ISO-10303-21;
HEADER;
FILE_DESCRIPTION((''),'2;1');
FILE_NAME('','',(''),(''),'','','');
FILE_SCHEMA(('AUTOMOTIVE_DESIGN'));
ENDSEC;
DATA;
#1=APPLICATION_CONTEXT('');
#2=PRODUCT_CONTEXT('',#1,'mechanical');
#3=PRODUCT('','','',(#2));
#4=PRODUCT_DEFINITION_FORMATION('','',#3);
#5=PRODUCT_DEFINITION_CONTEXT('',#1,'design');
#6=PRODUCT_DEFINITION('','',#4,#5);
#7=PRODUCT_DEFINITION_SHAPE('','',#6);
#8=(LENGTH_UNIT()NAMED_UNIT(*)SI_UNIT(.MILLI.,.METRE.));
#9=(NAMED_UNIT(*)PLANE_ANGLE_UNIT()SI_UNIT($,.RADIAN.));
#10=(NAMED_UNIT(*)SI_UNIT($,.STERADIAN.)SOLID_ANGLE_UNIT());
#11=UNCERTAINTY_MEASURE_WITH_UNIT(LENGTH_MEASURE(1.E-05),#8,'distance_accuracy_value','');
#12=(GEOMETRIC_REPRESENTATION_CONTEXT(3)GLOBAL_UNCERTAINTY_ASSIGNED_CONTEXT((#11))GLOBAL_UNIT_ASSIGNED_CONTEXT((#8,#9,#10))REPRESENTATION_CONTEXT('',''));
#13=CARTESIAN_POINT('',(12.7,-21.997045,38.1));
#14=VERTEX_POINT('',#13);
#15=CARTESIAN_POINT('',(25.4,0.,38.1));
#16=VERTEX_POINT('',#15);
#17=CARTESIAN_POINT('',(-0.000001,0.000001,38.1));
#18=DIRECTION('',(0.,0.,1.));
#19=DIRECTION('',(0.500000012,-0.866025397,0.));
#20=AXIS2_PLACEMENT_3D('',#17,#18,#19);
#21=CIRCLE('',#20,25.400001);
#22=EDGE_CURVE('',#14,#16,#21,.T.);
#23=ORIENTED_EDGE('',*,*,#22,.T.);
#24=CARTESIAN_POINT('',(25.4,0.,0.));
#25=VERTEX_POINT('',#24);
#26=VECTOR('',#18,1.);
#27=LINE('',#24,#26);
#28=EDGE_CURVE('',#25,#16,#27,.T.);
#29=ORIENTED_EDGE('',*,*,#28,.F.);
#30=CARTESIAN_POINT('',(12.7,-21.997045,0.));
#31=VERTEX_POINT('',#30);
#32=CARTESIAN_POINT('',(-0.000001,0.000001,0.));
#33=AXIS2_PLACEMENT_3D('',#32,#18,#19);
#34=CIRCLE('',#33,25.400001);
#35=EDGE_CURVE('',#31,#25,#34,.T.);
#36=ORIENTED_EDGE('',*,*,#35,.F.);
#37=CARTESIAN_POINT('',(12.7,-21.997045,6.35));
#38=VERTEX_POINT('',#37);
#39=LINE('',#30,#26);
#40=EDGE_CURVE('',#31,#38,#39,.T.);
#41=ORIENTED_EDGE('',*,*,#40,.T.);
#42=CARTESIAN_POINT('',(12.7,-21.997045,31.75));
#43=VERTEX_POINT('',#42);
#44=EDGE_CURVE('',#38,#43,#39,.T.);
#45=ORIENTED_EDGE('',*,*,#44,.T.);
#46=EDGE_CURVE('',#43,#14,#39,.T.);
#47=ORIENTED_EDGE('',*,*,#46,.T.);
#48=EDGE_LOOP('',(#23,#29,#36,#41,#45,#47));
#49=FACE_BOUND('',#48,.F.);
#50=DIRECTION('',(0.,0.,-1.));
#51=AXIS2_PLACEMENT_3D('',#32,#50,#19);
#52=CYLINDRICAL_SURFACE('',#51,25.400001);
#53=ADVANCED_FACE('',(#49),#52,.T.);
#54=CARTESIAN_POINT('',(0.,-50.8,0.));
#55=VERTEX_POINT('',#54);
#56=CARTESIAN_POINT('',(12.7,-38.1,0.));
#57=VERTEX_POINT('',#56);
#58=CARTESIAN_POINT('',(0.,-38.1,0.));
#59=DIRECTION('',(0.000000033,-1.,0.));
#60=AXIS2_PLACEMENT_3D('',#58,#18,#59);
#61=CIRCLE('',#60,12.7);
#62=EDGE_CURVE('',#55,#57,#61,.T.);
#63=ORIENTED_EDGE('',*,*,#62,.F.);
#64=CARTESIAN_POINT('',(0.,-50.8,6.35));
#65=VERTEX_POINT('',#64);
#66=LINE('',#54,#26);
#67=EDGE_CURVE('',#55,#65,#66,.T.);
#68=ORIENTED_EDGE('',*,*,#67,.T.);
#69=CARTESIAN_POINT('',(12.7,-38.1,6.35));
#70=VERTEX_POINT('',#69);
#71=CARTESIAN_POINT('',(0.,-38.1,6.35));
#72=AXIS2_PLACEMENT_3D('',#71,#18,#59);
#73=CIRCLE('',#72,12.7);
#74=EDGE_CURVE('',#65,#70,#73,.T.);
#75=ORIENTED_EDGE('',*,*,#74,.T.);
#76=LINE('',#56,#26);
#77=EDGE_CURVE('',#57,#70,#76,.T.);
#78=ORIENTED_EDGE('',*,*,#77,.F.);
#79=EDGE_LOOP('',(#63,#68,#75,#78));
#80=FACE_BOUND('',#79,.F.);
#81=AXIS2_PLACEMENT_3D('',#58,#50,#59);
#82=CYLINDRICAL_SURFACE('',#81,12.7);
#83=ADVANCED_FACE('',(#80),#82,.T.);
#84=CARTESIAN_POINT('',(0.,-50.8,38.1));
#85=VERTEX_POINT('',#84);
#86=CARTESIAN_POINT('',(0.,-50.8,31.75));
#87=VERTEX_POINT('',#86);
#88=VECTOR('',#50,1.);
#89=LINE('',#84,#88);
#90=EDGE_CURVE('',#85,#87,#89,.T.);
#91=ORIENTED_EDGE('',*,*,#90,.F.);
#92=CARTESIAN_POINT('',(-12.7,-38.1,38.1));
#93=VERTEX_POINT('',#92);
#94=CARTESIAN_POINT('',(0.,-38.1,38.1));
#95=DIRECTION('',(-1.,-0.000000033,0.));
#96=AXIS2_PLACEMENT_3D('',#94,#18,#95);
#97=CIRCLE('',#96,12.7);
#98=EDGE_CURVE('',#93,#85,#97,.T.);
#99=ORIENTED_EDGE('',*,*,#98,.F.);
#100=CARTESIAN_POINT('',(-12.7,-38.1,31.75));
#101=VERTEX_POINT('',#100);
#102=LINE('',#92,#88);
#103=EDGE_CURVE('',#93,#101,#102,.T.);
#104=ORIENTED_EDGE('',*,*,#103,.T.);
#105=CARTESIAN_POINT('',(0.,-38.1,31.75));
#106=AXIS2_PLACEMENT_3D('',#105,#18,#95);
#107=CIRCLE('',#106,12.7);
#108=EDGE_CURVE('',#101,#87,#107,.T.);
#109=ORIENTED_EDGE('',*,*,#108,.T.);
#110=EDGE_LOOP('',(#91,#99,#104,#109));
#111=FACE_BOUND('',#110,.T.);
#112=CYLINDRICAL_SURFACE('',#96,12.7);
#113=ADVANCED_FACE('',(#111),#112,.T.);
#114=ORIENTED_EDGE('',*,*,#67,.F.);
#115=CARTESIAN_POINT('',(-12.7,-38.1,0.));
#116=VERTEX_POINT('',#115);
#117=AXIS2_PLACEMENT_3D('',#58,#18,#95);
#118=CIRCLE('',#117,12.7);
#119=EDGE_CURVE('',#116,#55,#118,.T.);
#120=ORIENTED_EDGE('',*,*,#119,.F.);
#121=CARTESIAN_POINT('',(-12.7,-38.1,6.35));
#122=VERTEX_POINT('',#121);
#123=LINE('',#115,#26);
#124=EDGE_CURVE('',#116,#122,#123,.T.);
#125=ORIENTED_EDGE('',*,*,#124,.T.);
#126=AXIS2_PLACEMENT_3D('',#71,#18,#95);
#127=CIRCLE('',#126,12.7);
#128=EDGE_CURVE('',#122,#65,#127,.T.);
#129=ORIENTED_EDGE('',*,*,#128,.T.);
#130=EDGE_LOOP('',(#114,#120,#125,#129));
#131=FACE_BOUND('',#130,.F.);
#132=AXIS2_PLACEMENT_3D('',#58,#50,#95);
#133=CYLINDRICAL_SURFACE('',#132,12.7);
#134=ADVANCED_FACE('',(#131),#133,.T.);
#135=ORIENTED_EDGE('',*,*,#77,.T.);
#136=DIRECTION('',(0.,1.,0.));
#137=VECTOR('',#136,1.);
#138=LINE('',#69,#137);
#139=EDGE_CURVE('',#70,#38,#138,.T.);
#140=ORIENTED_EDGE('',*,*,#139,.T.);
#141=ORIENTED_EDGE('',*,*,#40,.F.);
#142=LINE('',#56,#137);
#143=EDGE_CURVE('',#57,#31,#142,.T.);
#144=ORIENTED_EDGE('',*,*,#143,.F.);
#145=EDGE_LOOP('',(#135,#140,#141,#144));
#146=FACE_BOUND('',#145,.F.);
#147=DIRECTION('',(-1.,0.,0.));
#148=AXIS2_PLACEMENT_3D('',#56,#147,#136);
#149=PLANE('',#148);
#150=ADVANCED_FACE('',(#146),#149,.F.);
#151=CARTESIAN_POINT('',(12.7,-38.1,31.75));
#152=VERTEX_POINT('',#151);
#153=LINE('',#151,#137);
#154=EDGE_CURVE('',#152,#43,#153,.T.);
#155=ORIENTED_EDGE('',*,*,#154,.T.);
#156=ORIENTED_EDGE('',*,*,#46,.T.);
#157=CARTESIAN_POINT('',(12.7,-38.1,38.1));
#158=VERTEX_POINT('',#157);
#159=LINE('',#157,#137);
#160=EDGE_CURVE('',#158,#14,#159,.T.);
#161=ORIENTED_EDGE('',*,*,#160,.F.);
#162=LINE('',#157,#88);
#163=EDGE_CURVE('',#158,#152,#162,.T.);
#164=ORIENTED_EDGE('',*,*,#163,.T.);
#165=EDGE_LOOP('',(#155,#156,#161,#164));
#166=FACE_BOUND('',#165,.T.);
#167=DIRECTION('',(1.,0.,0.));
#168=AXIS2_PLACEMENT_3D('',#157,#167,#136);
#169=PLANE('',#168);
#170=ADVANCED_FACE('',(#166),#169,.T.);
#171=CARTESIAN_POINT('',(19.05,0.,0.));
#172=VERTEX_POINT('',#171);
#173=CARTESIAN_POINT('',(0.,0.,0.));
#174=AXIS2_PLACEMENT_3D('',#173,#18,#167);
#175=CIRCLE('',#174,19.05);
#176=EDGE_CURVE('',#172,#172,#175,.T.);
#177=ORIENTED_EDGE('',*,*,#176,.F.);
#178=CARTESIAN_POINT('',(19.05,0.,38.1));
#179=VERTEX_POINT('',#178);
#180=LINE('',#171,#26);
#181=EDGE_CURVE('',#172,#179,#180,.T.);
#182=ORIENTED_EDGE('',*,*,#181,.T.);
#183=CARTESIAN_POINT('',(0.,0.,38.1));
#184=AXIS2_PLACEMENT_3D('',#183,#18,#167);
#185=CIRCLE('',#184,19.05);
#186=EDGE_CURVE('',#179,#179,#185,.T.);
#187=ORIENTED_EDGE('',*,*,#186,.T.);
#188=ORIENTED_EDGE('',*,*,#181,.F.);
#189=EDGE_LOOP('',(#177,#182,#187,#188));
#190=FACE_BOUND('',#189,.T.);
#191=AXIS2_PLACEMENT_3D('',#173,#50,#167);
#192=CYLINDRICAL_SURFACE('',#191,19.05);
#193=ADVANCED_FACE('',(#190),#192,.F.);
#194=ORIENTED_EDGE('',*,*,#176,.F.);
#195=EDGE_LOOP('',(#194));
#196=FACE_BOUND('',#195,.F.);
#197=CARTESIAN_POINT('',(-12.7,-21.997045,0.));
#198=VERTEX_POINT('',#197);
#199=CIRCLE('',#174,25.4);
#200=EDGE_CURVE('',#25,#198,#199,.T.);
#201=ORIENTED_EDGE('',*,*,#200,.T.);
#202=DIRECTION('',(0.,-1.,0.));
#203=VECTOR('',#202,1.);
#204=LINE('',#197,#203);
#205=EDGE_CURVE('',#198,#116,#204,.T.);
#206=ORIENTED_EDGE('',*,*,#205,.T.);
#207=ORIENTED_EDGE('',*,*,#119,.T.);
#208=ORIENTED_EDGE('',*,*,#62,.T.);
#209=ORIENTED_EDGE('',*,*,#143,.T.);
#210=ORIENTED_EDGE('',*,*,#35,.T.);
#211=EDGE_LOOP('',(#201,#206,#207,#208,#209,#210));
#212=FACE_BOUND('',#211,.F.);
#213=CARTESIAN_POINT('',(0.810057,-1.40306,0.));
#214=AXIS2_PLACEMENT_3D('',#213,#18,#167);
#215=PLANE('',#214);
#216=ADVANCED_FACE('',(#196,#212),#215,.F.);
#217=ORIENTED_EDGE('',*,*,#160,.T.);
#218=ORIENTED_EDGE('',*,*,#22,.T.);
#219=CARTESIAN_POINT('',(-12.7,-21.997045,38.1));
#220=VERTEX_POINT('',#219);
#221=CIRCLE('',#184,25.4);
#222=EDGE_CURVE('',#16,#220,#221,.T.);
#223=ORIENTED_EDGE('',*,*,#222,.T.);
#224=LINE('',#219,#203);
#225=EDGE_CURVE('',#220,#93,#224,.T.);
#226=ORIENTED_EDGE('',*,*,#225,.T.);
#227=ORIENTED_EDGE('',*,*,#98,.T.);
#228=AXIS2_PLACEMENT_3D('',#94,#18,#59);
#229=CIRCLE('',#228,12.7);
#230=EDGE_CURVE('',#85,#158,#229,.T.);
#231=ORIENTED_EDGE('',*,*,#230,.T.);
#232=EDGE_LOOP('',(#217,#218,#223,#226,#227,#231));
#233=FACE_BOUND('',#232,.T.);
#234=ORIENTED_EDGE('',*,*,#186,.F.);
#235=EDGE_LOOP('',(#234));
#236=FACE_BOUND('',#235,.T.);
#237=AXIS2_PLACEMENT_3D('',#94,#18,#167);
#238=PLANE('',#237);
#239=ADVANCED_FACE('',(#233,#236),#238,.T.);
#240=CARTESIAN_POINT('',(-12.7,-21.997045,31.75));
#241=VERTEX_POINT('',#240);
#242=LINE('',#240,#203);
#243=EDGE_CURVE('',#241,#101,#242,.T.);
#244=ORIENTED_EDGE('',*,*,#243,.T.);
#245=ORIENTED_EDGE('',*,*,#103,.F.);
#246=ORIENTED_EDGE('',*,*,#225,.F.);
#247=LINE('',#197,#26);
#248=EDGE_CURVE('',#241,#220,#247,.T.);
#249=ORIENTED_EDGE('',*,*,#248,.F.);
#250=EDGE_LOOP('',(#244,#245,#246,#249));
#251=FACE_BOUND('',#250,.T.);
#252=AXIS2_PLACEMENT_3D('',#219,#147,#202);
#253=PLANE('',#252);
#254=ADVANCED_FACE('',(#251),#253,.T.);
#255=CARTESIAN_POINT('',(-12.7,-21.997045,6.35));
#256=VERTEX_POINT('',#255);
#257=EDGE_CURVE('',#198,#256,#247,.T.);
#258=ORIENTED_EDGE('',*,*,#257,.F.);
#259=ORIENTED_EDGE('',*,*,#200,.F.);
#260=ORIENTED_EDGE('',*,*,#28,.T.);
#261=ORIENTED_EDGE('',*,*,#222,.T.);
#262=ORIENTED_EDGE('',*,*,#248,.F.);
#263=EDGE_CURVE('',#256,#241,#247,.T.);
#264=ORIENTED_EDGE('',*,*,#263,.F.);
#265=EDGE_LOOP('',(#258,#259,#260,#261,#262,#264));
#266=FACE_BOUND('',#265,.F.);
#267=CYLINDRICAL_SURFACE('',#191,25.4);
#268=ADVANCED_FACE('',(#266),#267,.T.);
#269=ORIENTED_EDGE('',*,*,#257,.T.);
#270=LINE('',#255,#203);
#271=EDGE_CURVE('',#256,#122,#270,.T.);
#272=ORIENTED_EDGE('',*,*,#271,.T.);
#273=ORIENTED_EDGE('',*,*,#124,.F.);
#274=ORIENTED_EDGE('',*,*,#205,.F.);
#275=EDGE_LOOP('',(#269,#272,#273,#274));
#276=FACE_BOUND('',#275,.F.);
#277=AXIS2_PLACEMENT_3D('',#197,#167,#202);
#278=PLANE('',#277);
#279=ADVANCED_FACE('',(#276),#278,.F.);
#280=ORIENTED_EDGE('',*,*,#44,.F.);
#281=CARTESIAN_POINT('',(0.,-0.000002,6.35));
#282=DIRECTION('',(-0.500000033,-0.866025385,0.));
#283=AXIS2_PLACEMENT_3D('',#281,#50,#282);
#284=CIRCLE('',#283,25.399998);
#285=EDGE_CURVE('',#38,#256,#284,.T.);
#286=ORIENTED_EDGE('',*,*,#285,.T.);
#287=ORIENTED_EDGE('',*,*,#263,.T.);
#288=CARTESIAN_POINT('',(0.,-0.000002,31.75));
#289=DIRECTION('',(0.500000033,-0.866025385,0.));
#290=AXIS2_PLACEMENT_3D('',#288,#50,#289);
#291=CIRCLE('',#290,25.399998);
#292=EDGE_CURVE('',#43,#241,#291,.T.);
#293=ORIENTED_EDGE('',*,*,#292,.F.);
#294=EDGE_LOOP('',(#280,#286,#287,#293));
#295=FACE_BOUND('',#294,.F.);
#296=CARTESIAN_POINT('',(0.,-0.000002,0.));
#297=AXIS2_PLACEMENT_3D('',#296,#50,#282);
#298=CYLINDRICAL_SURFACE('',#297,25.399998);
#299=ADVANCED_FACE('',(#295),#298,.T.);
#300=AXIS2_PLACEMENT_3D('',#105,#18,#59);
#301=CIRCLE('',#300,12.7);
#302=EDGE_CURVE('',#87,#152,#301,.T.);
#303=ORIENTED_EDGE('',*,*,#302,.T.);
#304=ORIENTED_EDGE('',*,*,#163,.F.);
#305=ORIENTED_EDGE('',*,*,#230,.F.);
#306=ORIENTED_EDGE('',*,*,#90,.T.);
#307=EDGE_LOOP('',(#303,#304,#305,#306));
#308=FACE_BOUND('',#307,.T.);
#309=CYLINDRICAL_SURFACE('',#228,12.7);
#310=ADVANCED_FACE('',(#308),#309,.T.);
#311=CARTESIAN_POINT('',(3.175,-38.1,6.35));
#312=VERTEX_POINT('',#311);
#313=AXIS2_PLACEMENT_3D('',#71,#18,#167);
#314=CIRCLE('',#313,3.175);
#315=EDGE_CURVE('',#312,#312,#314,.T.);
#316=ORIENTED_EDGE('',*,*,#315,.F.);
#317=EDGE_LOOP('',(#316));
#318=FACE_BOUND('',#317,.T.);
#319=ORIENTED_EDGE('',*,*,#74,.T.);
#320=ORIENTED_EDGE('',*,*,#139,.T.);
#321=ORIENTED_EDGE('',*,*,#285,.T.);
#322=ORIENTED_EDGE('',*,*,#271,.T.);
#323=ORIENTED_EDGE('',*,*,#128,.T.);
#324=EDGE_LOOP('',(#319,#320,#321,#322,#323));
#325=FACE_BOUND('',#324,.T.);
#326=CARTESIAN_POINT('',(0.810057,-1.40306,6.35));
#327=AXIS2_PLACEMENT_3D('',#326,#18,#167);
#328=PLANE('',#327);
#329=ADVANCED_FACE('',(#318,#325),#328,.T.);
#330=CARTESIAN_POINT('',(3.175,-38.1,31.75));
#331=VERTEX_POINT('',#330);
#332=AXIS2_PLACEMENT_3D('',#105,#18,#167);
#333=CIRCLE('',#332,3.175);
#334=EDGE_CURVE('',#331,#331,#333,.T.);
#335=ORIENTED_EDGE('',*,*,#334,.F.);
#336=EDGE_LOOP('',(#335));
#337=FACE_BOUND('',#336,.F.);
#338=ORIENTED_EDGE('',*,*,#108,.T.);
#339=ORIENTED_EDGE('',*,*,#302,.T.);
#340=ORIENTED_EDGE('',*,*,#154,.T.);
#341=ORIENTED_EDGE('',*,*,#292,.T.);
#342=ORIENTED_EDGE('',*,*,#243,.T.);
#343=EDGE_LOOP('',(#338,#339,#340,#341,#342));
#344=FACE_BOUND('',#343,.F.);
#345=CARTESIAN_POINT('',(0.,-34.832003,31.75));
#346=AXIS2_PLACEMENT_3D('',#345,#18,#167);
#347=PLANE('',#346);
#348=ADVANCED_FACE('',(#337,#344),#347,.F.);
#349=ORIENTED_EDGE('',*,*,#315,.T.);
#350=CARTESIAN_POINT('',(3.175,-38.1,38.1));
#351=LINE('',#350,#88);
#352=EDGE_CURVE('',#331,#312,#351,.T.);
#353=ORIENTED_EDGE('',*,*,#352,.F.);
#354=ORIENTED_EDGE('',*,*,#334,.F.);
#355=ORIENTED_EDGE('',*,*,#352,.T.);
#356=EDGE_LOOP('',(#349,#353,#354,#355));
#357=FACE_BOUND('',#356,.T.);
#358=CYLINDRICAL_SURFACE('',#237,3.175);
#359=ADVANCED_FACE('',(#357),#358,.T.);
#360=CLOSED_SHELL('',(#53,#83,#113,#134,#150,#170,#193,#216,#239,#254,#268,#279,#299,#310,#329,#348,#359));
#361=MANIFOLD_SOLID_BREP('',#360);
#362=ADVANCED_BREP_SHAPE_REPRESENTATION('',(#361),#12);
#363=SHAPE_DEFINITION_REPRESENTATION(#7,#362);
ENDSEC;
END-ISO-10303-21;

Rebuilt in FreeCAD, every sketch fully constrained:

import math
import FreeCAD as App
import Part
import Sketcher

V = App.Vector
Q = App.Units.Quantity

doc = App.newDocument("Part")
body = doc.addObject("PartDesign::Body", "Body")

# Sketch on XY plane
sketch1 = doc.addObject("Sketcher::SketchObject", "Sketch")
body.addObject(sketch1)
sketch1.AttachmentSupport = (doc.XY_Plane, [""])
sketch1.MapMode = "FlatFace"
sketch1.addGeometry([
    Part.ArcOfCircle(Part.Circle(V(0, 0, 0), V(0, 0, 1), 25), math.radians(-60), math.radians(0)),
    Part.ArcOfCircle(Part.Circle(V(0, 0, 0), V(0, 0, 1), 25), math.radians(0), math.radians(240)),
    Part.ArcOfCircle(Part.Circle(V(0, 0, 0), V(0, 0, 1), 25), math.radians(-120), math.radians(-60)),
    Part.Circle(V(0, 0, 0), V(0, 0, 1), 19),
], False)
sketch1.addConstraint([
    Sketcher.Constraint("Tangent", 0, 2, 1, 1),
    Sketcher.Constraint("Tangent", 1, 2, 2, 1),
    Sketcher.Constraint("Tangent", 2, 2, 0, 1),
    Sketcher.Constraint("Coincident", 0, 3, -1, 1),
    Sketcher.Constraint("Coincident", 3, 3, -1, 1),
    Sketcher.Constraint("PointOnObject", 0, 2, -1),
    Sketcher.Constraint("Horizontal", 1, 2, 2, 2),
    Sketcher.Constraint("Radius", 0, Q("1 in")),
    Sketcher.Constraint("Diameter", 3, Q("1.5 in")),
    Sketcher.Constraint("DistanceX", 1, 2, 2, 2, Q("1 in")),
])
pad1 = doc.addObject("PartDesign::Pad", "Pad")
body.addObject(pad1)
pad1.Profile = sketch1
pad1.Length = Q("1.5 in")

# Sketch on XY plane
sketch2 = doc.addObject("Sketcher::SketchObject", "Sketch001")
body.addObject(sketch2)
sketch2.AttachmentSupport = (doc.XY_Plane, [""])
sketch2.MapMode = "FlatFace"
sketch2.addGeometry([
    Part.ArcOfCircle(Part.Circle(V(0, 0, 0), V(0, 0, 1), 25), math.radians(-60), math.radians(0)),  # 0
    Part.ArcOfCircle(Part.Circle(V(0, 0, 0), V(0, 0, 1), 25), math.radians(0), math.radians(240)),  # 1
    Part.LineSegment(V(-13, -22, 0), V(-13, -38, 0)),  # 2
    Part.ArcOfCircle(Part.Circle(V(0, -38, 0), V(0, 0, 1), 13), math.radians(-180), math.radians(-90)),  # 3
    Part.ArcOfCircle(Part.Circle(V(0, -38, 0), V(0, 0, 1), 13), math.radians(-90), math.radians(0)),  # 4
    Part.LineSegment(V(13, -38, 0), V(13, -22, 0)),  # 5
    Part.Circle(V(0, 0, 0), V(0, 0, 1), 19),  # 6
], False)
sketch2.addConstraint([
    Sketcher.Constraint("Tangent", 0, 2, 1, 1),
    Sketcher.Constraint("Coincident", 1, 2, 2, 1),
    Sketcher.Constraint("Tangent", 2, 2, 3, 1),
    Sketcher.Constraint("Tangent", 3, 2, 4, 1),
    Sketcher.Constraint("Tangent", 4, 2, 5, 1),
    Sketcher.Constraint("Coincident", 5, 2, 0, 1),
    Sketcher.Constraint("Vertical", 2),
    Sketcher.Constraint("Vertical", 5),
    Sketcher.Constraint("Coincident", 0, 3, -1, 1),
    Sketcher.Constraint("Coincident", 6, 3, -1, 1),
    Sketcher.Constraint("Equal", 0, 1),
    Sketcher.Constraint("Equal", 3, 4),
    Sketcher.Constraint("PointOnObject", 3, 3, -2),
    Sketcher.Constraint("PointOnObject", 0, 2, -1),
    Sketcher.Constraint("PointOnObject", 3, 2, -2),
    Sketcher.Constraint("Radius", 0, Q("1 in")),
    Sketcher.Constraint("Diameter", 6, Q("1.5 in")),
    Sketcher.Constraint("Radius", 3, Q("0.5 in")),
    Sketcher.Constraint("DistanceY", 3, 2, -1, 1, Q("2 in")),
])
pad2 = doc.addObject("PartDesign::Pad", "Pad001")
body.addObject(pad2)
pad2.Profile = sketch2
pad2.Length = Q("0.25 in")

# Sketch on XY plane
sketch3 = doc.addObject("Sketcher::SketchObject", "Sketch002")
body.addObject(sketch3)
sketch3.AttachmentSupport = (doc.XY_Plane, [""])
sketch3.MapMode = "FlatFace"
sketch3.AttachmentOffset = App.Placement(V(0, 0, 1.5 * 25.4), App.Rotation())
sketch3.addGeometry([
    Part.ArcOfCircle(Part.Circle(V(0, 0, 0), V(0, 0, 1), 25), math.radians(-120), math.radians(-60)),  # 0
    Part.LineSegment(V(-13, -22, 0), V(-13, -38, 0)),  # 1
    Part.ArcOfCircle(Part.Circle(V(0, -38, 0), V(0, 0, 1), 13), math.radians(-180), math.radians(-90)),  # 2
    Part.ArcOfCircle(Part.Circle(V(0, -38, 0), V(0, 0, 1), 13), math.radians(-90), math.radians(0)),  # 3
    Part.LineSegment(V(13, -38, 0), V(13, -22, 0)),  # 4
], False)
sketch3.addConstraint([
    Sketcher.Constraint("Coincident", 0, 1, 1, 1),
    Sketcher.Constraint("Tangent", 1, 2, 2, 1),
    Sketcher.Constraint("Tangent", 2, 2, 3, 1),
    Sketcher.Constraint("Tangent", 3, 2, 4, 1),
    Sketcher.Constraint("Coincident", 4, 2, 0, 2),
    Sketcher.Constraint("Vertical", 1),
    Sketcher.Constraint("Vertical", 4),
    Sketcher.Constraint("Coincident", 0, 3, -1, 1),
    Sketcher.Constraint("Equal", 2, 3),
    Sketcher.Constraint("PointOnObject", 2, 3, -2),
    Sketcher.Constraint("PointOnObject", 2, 2, -2),
    Sketcher.Constraint("Radius", 0, Q("0.9999999 in")),
    Sketcher.Constraint("Radius", 2, Q("0.5 in")),
    Sketcher.Constraint("DistanceY", 2, 2, -1, 1, Q("2 in")),
])
pad3 = doc.addObject("PartDesign::Pad", "Pad002")
body.addObject(pad3)
pad3.Profile = sketch3
pad3.Length = Q("0.25 in")
pad3.Reversed = True

# Sketch on XY plane
sketch4 = doc.addObject("Sketcher::SketchObject", "Sketch003")
body.addObject(sketch4)
sketch4.AttachmentSupport = (doc.XY_Plane, [""])
sketch4.MapMode = "FlatFace"
sketch4.AttachmentOffset = App.Placement(V(0, 0, 1.5 * 25.4), App.Rotation())
sketch4.addGeometry(Part.Circle(V(0, -38.1, 0), V(0, 0, 1), 3.2), False)
sketch4.addConstraint([
    Sketcher.Constraint("PointOnObject", 0, 3, -2),
    Sketcher.Constraint("Diameter", 0, Q("0.25 in")),
    Sketcher.Constraint("DistanceY", 0, 3, -1, 1, Q("1.5 in")),
])
pad4 = doc.addObject("PartDesign::Pad", "Pad003")
body.addObject(pad4)
pad4.Profile = sketch4
pad4.Length = Q("1.5 in")
pad4.Reversed = True

doc.recompute()
